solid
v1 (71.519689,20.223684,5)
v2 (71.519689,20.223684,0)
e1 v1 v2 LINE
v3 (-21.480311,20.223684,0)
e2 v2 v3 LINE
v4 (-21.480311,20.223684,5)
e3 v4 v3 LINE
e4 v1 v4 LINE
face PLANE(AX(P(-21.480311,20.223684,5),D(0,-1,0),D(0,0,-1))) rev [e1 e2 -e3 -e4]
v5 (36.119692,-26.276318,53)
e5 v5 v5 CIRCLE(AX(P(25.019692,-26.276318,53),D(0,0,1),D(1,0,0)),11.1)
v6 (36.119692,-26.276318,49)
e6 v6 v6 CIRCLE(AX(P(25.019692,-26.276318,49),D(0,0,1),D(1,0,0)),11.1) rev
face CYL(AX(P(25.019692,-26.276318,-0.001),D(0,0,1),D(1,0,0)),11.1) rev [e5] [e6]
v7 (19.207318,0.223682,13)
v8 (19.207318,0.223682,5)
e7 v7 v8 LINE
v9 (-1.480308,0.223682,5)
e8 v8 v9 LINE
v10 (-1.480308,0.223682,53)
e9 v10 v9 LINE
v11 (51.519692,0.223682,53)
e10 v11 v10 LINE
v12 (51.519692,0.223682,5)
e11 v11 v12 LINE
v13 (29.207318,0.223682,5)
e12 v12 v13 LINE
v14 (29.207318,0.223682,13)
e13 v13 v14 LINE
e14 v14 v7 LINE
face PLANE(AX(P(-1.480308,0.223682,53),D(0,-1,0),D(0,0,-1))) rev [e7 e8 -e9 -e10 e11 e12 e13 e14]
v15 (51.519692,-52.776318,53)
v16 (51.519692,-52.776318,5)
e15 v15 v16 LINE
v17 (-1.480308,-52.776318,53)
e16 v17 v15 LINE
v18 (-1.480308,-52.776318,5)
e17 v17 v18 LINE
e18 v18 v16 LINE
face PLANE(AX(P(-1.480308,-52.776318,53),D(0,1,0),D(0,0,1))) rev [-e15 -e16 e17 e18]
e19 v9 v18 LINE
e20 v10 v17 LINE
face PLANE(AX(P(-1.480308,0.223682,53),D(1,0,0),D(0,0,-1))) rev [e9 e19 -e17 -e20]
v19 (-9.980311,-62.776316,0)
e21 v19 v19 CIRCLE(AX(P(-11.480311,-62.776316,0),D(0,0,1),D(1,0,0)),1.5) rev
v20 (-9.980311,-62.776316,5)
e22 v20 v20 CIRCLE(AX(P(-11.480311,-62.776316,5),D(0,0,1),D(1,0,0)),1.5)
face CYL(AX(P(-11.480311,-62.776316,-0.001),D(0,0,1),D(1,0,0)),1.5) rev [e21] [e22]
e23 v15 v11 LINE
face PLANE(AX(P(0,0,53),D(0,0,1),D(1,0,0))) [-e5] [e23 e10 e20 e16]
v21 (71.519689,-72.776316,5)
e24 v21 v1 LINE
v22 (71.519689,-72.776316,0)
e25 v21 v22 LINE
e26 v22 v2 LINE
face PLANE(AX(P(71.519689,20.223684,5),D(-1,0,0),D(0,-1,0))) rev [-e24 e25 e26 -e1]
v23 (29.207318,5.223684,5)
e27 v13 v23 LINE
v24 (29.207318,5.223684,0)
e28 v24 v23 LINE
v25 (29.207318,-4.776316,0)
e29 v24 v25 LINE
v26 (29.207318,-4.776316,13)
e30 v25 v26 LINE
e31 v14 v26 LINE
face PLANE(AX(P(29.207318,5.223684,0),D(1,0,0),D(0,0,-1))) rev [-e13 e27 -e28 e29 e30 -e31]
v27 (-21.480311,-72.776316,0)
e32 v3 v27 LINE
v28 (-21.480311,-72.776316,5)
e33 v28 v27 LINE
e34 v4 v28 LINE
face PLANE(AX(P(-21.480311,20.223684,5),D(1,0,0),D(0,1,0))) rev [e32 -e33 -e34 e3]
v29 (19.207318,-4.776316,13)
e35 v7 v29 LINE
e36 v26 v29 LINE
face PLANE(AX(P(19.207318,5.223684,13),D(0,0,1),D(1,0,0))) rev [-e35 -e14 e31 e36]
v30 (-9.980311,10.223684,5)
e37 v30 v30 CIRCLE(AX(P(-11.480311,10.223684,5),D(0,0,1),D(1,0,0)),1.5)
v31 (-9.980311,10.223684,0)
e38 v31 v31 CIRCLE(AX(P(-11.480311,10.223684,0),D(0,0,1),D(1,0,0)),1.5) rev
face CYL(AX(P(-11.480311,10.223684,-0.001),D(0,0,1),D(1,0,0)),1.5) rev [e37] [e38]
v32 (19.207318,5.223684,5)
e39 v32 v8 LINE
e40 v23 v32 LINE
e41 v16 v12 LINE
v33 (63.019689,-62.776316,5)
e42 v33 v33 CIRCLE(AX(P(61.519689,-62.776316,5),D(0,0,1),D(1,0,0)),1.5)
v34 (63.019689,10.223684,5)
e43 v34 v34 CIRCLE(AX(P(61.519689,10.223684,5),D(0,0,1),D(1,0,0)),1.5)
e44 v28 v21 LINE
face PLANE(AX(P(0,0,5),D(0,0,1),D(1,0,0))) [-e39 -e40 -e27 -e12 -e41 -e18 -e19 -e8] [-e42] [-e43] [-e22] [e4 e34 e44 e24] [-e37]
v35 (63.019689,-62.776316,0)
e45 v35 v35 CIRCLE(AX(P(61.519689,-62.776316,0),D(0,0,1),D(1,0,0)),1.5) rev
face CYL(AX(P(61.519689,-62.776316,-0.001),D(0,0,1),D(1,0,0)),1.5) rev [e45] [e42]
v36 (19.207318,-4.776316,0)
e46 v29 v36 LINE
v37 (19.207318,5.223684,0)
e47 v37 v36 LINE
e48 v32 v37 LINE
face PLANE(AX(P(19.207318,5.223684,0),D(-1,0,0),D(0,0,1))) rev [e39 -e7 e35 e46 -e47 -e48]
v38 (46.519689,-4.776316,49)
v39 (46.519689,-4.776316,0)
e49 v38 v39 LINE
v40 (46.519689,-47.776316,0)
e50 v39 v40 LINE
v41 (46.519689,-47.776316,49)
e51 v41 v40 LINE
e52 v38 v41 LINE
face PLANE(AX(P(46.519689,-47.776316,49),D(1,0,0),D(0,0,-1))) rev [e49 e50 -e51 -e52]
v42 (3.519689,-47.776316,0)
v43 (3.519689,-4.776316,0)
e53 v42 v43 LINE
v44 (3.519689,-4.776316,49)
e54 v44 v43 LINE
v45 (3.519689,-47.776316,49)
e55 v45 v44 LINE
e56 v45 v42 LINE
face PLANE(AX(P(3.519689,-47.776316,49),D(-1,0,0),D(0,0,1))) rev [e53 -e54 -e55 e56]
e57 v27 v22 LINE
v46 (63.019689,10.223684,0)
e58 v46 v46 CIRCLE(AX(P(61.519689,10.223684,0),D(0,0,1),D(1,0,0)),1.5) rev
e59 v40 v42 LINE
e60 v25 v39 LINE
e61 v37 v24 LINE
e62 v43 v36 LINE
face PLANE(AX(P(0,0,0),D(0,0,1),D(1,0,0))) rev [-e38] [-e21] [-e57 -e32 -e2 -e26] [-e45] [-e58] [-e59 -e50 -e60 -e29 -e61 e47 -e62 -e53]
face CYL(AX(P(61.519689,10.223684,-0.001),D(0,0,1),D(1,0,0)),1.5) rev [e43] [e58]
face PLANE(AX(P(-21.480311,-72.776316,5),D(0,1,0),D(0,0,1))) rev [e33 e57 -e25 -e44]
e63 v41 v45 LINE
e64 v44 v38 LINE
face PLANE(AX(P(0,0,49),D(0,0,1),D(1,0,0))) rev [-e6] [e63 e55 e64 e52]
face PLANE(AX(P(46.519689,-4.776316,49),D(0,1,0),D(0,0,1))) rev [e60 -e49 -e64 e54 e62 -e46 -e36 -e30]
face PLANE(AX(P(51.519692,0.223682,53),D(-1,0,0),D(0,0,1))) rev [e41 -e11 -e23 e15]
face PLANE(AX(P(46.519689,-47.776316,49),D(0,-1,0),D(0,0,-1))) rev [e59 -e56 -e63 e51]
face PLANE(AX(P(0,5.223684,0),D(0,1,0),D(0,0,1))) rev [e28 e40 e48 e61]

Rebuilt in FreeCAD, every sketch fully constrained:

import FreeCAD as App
import Part
import Sketcher
from FreeCAD import Vector
Q = App.Units.Quantity

doc = App.newDocument("Part")
body = doc.addObject("PartDesign::Body", "Body")

# Sketch on XY plane
sketch1 = doc.addObject("Sketcher::SketchObject", "Sketch")
body.addObject(sketch1)
sketch1.AttachmentSupport = (doc.XY_Plane, [""])
sketch1.MapMode = "FlatFace"
sketch1.addGeometry(Part.LineSegment(Vector(-21, 20, 0), Vector(-21, -73, 0)), False)
sketch1.addGeometry(Part.LineSegment(Vector(-21, -73, 0), Vector(72, -73, 0)), False)
sketch1.addGeometry(Part.LineSegment(Vector(72, -73, 0), Vector(72, 20, 0)), False)
sketch1.addGeometry(Part.LineSegment(Vector(72, 20, 0), Vector(-21, 20, 0)), False)
sketch1.addConstraint(Sketcher.Constraint("Coincident", 0, 2, 1, 1))
sketch1.addConstraint(Sketcher.Constraint("Coincident", 1, 2, 2, 1))
sketch1.addConstraint(Sketcher.Constraint("Coincident", 2, 2, 3, 1))
sketch1.addConstraint(Sketcher.Constraint("Coincident", 3, 2, 0, 1))
sketch1.addConstraint(Sketcher.Constraint("Vertical", 0))
sketch1.addConstraint(Sketcher.Constraint("Horizontal", 1))
sketch1.addConstraint(Sketcher.Constraint("Vertical", 2))
sketch1.addConstraint(Sketcher.Constraint("Horizontal", 3))
sketch1.addConstraint(Sketcher.Constraint("Equal", 3, 0))
sketch1.addConstraint(Sketcher.Constraint("DistanceX", 1, 1, 1, 2, Q("93 mm")))
sketch1.addConstraint(Sketcher.Constraint("DistanceX", 0, 2, -1, 1, Q("21.480311 mm")))
sketch1.addConstraint(Sketcher.Constraint("DistanceY", 0, 2, -1, 1, Q("72.776316 mm")))
pad1 = doc.addObject("PartDesign::Pad", "Pad")
body.addObject(pad1)
pad1.Profile = sketch1
pad1.Length = 5

# Sketch on XY plane
sketch2 = doc.addObject("Sketcher::SketchObject", "Sketch001")
body.addObject(sketch2)
sketch2.AttachmentSupport = (doc.XY_Plane, [""])
sketch2.MapMode = "FlatFace"
sketch2.AttachmentOffset = App.Placement(Vector(0, 0, 5), App.Rotation())
sketch2.addGeometry(Part.LineSegment(Vector(-1, 0, 0), Vector(-1, -53, 0)), False)
sketch2.addGeometry(Part.LineSegment(Vector(-1, -53, 0), Vector(52, -53, 0)), False)
sketch2.addGeometry(Part.LineSegment(Vector(52, -53, 0), Vector(52, 0, 0)), False)
sketch2.addGeometry(Part.LineSegment(Vector(52, 0, 0), Vector(-1, 0, 0)), False)
sketch2.addConstraint(Sketcher.Constraint("Coincident", 0, 2, 1, 1))
sketch2.addConstraint(Sketcher.Constraint("Coincident", 1, 2, 2, 1))
sketch2.addConstraint(Sketcher.Constraint("Coincident", 2, 2, 3, 1))
sketch2.addConstraint(Sketcher.Constraint("Coincident", 3, 2, 0, 1))
sketch2.addConstraint(Sketcher.Constraint("Vertical", 0))
sketch2.addConstraint(Sketcher.Constraint("Horizontal", 1))
sketch2.addConstraint(Sketcher.Constraint("Vertical", 2))
sketch2.addConstraint(Sketcher.Constraint("Horizontal", 3))
sketch2.addConstraint(Sketcher.Constraint("Equal", 3, 0))
sketch2.addConstraint(Sketcher.Constraint("DistanceX", 1, 1, 1, 2, Q("53 mm")))
sketch2.addConstraint(Sketcher.Constraint("DistanceY", 0, 2, -1, 1, Q("52.776318 mm")))
sketch2.addConstraint(Sketcher.Constraint("DistanceX", 0, 2, -1, 1, Q("1.480308 mm")))
pad2 = doc.addObject("PartDesign::Pad", "Pad001")
body.addObject(pad2)
pad2.Profile = sketch2
pad2.Length = 48

# Sketch on XY plane
sketch3 = doc.addObject("Sketcher::SketchObject", "Sketch002")
body.addObject(sketch3)
sketch3.AttachmentSupport = (doc.XY_Plane, [""])
sketch3.MapMode = "FlatFace"
sketch3.addGeometry(Part.LineSegment(Vector(47, -5, 0), Vector(47, -48, 0)), False)
sketch3.addGeometry(Part.LineSegment(Vector(47, -48, 0), Vector(4, -48, 0)), False)
sketch3.addGeometry(Part.LineSegment(Vector(4, -48, 0), Vector(4, -5, 0)), False)
sketch3.addGeometry(Part.LineSegment(Vector(4, -5, 0), Vector(47, -5, 0)), False)
sketch3.addConstraint(Sketcher.Constraint("Coincident", 0, 2, 1, 1))
sketch3.addConstraint(Sketcher.Constraint("Coincident", 1, 2, 2, 1))
sketch3.addConstraint(Sketcher.Constraint("Coincident", 2, 2, 3, 1))
sketch3.addConstraint(Sketcher.Constraint("Coincident", 3, 2, 0, 1))
sketch3.addConstraint(Sketcher.Constraint("Vertical", 0))
sketch3.addConstraint(Sketcher.Constraint("Horizontal", 1))
sketch3.addConstraint(Sketcher.Constraint("Vertical", 2))
sketch3.addConstraint(Sketcher.Constraint("Horizontal", 3))
sketch3.addConstraint(Sketcher.Constraint("Equal", 3, 0))
sketch3.addConstraint(Sketcher.Constraint("DistanceX", 1, 2, 1, 1, Q("43 mm")))
sketch3.addConstraint(Sketcher.Constraint("DistanceX", -1, 1, 0, 2, Q("46.519689 mm")))
sketch3.addConstraint(Sketcher.Constraint("DistanceY", 0, 2, -1, 1, Q("47.776316 mm")))
pocket1 = doc.addObject("PartDesign::Pocket", "Pocket")
body.addObject(pocket1)
pocket1.Profile = sketch3
pocket1.Length = 49
pocket1.Reversed = True

# Sketch on XY plane
sketch4 = doc.addObject("Sketcher::SketchObject", "Sketch003")
body.addObject(sketch4)
sketch4.AttachmentSupport = (doc.XY_Plane, [""])
sketch4.MapMode = "FlatFace"
sketch4.AttachmentOffset = App.Placement(Vector(0, 0, 53), App.Rotation())
sketch4.addGeometry(Part.Circle(Vector(25, -26, 0), Vector(0, 0, 1), 11), False)
sketch4.addConstraint(Sketcher.Constraint("Diameter", 0, Q("22.2 mm")))
sketch4.addConstraint(Sketcher.Constraint("DistanceY", 0, 3, -1, 1, Q("26.276318 mm")))
sketch4.addConstraint(Sketcher.Constraint("DistanceX", -1, 1, 0, 3, Q("25.019692 mm")))
pocket2 = doc.addObject("PartDesign::Pocket", "Pocket001")
body.addObject(pocket2)
pocket2.Profile = sketch4
pocket2.Type = "UpToFirst"

# Sketch on XY plane
sketch5 = doc.addObject("Sketcher::SketchObject", "Sketch004")
body.addObject(sketch5)
sketch5.AttachmentSupport = (doc.XY_Plane, [""])
sketch5.MapMode = "FlatFace"
sketch5.AttachmentOffset = App.Placement(Vector(0, 0, 5), App.Rotation())
sketch5.addGeometry(Part.Circle(Vector(61.5, -62.8, 0), Vector(0, 0, 1), 1.5), False)
sketch5.addConstraint(Sketcher.Constraint("Diameter", 0, Q("3 mm")))
sketch5.addConstraint(Sketcher.Constraint("DistanceX", -1, 1, 0, 3, Q("61.519689 mm")))
sketch5.addConstraint(Sketcher.Constraint("DistanceY", 0, 3, -1, 1, Q("62.776316 mm")))
pocket3 = doc.addObject("PartDesign::Pocket", "Pocket002")
body.addObject(pocket3)
pocket3.Profile = sketch5
pocket3.Type = "UpToFirst"

# Sketch on XY plane
sketch6 = doc.addObject("Sketcher::SketchObject", "Sketch005")
body.addObject(sketch6)
sketch6.AttachmentSupport = (doc.XY_Plane, [""])
sketch6.MapMode = "FlatFace"
sketch6.AttachmentOffset = App.Placement(Vector(0, 0, 5), App.Rotation())
sketch6.addGeometry(Part.Circle(Vector(-11.5, -62.8, 0), Vector(0, 0, 1), 1.5), False)
sketch6.addConstraint(Sketcher.Constraint("Diameter", 0, Q("3 mm")))
sketch6.addConstraint(Sketcher.Constraint("DistanceX", 0, 3, -1, 1, Q("11.480311 mm")))
sketch6.addConstraint(Sketcher.Constraint("DistanceY", 0, 3, -1, 1, Q("62.776316 mm")))
pocket4 = doc.addObject("PartDesign::Pocket", "Pocket003")
body.addObject(pocket4)
pocket4.Profile = sketch6
pocket4.Type = "UpToFirst"

# Sketch on XY plane
sketch7 = doc.addObject("Sketcher::SketchObject", "Sketch006")
body.addObject(sketch7)
sketch7.AttachmentSupport = (doc.XY_Plane, [""])
sketch7.MapMode = "FlatFace"
sketch7.AttachmentOffset = App.Placement(Vector(0, 0, 5), App.Rotation())
sketch7.addGeometry(Part.Circle(Vector(-11.5, 10.2, 0), Vector(0, 0, 1), 1.5), False)
sketch7.addConstraint(Sketcher.Constraint("Diameter", 0, Q("3 mm")))
sketch7.addConstraint(Sketcher.Constraint("DistanceX", 0, 3, -1, 1, Q("11.480311 mm")))
sketch7.addConstraint(Sketcher.Constraint("DistanceY", -1, 1, 0, 3, Q("10.223684 mm")))
pocket5 = doc.addObject("PartDesign::Pocket", "Pocket004")
body.addObject(pocket5)
pocket5.Profile = sketch7
pocket5.Type = "UpToFirst"

# Sketch on XY plane
sketch8 = doc.addObject("Sketcher::SketchObject", "Sketch007")
body.addObject(sketch8)
sketch8.AttachmentSupport = (doc.XY_Plane, [""])
sketch8.MapMode = "FlatFace"
sketch8.AttachmentOffset = App.Placement(Vector(0, 0, 5), App.Rotation())
sketch8.addGeometry(Part.Circle(Vector(61.5, 10.2, 0), Vector(0, 0, 1), 1.5), False)
sketch8.addConstraint(Sketcher.Constraint("Diameter", 0, Q("3 mm")))
sketch8.addConstraint(Sketcher.Constraint("DistanceX", -1, 1, 0, 3, Q("61.519689 mm")))
sketch8.addConstraint(Sketcher.Constraint("DistanceY", -1, 1, 0, 3, Q("10.223684 mm")))
pocket6 = doc.addObject("PartDesign::Pocket", "Pocket005")
body.addObject(pocket6)
pocket6.Profile = sketch8
pocket6.Type = "UpToFirst"

# Sketch on XZ plane
sketch9 = doc.addObject("Sketcher::SketchObject", "Sketch008")
body.addObject(sketch9)
sketch9.AttachmentSupport = (doc.XZ_Plane, [""])
sketch9.MapMode = "FlatFace"
sketch9.AttachmentOffset = App.Placement(Vector(0, 0, 4.776316), App.Rotation())
sketch9.addGeometry(Part.LineSegment(Vector(19, 13, 0), Vector(19, 0, 0)), False)
sketch9.addGeometry(Part.LineSegment(Vector(19, 0, 0), Vector(29, 0, 0)), False)
sketch9.addGeometry(Part.LineSegment(Vector(29, 0, 0), Vector(29, 13, 0)), False)
sketch9.addGeometry(Part.LineSegment(Vector(29, 13, 0), Vector(19, 13, 0)), False)
sketch9.addConstraint(Sketcher.Constraint("Coincident", 0, 2, 1, 1))
sketch9.addConstraint(Sketcher.Constraint("Coincident", 1, 2, 2, 1))
sketch9.addConstraint(Sketcher.Constraint("Coincident", 2, 2, 3, 1))
sketch9.addConstraint(Sketcher.Constraint("Coincident", 3, 2, 0, 1))
sketch9.addConstraint(Sketcher.Constraint("Vertical", 0))
sketch9.addConstraint(Sketcher.Constraint("Horizontal", 1))
sketch9.addConstraint(Sketcher.Constraint("Vertical", 2))
sketch9.addConstraint(Sketcher.Constraint("Horizontal", 3))
sketch9.addConstraint(Sketcher.Constraint("PointOnObject", 0, 2, -1))
sketch9.addConstraint(Sketcher.Constraint("DistanceX", 1, 1, 1, 2, Q("10 mm")))
sketch9.addConstraint(Sketcher.Constraint("DistanceY", 0, 2, 0, 1, Q("13 mm")))
sketch9.addConstraint(Sketcher.Constraint("DistanceX", -1, 1, 0, 2, Q("19.207318 mm")))
pocket7 = doc.addObject("PartDesign::Pocket", "Pocket006")
body.addObject(pocket7)
pocket7.Profile = sketch9
pocket7.Length = 10

doc.recompute()
